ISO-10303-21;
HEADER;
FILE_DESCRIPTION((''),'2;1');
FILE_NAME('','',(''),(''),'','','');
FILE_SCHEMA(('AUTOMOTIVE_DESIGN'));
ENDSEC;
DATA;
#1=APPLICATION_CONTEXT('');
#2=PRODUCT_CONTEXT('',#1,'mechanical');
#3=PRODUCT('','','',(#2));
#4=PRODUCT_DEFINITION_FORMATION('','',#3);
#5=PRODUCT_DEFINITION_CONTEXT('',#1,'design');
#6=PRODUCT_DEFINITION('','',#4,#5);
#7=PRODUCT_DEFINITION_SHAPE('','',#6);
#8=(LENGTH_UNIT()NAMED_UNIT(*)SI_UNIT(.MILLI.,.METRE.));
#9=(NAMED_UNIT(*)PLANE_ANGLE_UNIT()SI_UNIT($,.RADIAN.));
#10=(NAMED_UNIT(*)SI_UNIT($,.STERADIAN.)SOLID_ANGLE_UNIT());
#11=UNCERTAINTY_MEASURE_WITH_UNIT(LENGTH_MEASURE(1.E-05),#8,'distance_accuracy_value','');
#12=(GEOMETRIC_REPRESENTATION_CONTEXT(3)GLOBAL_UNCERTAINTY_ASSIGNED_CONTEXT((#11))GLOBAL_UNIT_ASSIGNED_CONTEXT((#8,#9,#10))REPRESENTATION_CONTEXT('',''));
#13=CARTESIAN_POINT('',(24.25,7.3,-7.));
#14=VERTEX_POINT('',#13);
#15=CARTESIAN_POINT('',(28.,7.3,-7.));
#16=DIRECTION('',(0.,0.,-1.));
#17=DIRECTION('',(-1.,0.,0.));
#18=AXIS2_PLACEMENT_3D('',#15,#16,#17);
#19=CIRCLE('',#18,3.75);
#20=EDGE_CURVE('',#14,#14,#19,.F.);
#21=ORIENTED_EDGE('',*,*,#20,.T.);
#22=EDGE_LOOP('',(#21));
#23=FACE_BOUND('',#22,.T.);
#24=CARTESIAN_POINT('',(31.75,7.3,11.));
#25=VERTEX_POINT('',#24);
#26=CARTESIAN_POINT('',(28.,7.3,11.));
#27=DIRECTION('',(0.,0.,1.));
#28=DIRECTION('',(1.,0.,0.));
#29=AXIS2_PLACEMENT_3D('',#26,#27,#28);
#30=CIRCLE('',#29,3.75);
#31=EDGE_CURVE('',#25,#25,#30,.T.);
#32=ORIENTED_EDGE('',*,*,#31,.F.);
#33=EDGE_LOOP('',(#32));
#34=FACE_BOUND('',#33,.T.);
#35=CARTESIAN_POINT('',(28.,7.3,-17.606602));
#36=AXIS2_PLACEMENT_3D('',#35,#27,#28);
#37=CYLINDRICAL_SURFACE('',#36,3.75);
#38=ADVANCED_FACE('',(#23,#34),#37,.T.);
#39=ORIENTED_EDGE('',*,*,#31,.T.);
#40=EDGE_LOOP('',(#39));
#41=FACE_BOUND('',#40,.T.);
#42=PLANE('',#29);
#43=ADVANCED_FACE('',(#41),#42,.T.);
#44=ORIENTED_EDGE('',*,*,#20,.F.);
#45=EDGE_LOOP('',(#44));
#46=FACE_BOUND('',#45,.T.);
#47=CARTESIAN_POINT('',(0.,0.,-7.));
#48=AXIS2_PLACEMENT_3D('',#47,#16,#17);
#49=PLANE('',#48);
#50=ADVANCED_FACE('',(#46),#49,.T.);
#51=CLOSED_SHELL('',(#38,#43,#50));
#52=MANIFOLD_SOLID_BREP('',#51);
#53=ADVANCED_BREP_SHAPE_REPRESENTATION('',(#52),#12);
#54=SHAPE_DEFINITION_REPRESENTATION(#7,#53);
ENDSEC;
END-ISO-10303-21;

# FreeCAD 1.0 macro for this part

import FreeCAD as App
import Part
import Sketcher
from FreeCAD import Vector

doc = App.newDocument("Part")
params = doc.addObject("Spreadsheet::Sheet", "Params")
for row, (alias, value) in enumerate([
    ("sketch1_diameter", "7.5 mm"),
    ("pad1_length", "17 mm"),
    ("pad1_length2", "1 mm"),
], start=1):
    params.set(f"A{row}", alias)
    params.set(f"B{row}", "=" + value)
    params.setAlias(f"B{row}", alias)

body = doc.addObject("PartDesign::Body", "Body")

# Sketch on XY plane
sketch1 = doc.addObject("Sketcher::SketchObject", "Sketch")
body.addObject(sketch1)
sketch1.AttachmentSupport = (doc.XY_Plane, [""])
sketch1.MapMode = "FlatFace"
sketch1.AttachmentOffset = App.Placement(Vector(0, 0, -6), App.Rotation())
sketch1.addGeometry(Part.Circle(Vector(28, 7.3, 0), Vector(0, 0, 1), 3.8), False)
sketch1.addConstraint([
    Sketcher.Constraint("Diameter", 0, 7.5),
    Sketcher.Constraint("DistanceX", -1, 1, 0, 3, 28.0),
    Sketcher.Constraint("DistanceY", -1, 1, 0, 3, 7.3),
])
sketch1.setExpression("Constraints[0]", "Params.sketch1_diameter")
pad1 = doc.addObject("PartDesign::Pad", "Pad")
body.addObject(pad1)
pad1.Profile = sketch1
pad1.Type = "TwoLengths"
pad1.setExpression("Length", "Params.pad1_length")
pad1.setExpression("Length2", "Params.pad1_length2")

doc.recompute()
